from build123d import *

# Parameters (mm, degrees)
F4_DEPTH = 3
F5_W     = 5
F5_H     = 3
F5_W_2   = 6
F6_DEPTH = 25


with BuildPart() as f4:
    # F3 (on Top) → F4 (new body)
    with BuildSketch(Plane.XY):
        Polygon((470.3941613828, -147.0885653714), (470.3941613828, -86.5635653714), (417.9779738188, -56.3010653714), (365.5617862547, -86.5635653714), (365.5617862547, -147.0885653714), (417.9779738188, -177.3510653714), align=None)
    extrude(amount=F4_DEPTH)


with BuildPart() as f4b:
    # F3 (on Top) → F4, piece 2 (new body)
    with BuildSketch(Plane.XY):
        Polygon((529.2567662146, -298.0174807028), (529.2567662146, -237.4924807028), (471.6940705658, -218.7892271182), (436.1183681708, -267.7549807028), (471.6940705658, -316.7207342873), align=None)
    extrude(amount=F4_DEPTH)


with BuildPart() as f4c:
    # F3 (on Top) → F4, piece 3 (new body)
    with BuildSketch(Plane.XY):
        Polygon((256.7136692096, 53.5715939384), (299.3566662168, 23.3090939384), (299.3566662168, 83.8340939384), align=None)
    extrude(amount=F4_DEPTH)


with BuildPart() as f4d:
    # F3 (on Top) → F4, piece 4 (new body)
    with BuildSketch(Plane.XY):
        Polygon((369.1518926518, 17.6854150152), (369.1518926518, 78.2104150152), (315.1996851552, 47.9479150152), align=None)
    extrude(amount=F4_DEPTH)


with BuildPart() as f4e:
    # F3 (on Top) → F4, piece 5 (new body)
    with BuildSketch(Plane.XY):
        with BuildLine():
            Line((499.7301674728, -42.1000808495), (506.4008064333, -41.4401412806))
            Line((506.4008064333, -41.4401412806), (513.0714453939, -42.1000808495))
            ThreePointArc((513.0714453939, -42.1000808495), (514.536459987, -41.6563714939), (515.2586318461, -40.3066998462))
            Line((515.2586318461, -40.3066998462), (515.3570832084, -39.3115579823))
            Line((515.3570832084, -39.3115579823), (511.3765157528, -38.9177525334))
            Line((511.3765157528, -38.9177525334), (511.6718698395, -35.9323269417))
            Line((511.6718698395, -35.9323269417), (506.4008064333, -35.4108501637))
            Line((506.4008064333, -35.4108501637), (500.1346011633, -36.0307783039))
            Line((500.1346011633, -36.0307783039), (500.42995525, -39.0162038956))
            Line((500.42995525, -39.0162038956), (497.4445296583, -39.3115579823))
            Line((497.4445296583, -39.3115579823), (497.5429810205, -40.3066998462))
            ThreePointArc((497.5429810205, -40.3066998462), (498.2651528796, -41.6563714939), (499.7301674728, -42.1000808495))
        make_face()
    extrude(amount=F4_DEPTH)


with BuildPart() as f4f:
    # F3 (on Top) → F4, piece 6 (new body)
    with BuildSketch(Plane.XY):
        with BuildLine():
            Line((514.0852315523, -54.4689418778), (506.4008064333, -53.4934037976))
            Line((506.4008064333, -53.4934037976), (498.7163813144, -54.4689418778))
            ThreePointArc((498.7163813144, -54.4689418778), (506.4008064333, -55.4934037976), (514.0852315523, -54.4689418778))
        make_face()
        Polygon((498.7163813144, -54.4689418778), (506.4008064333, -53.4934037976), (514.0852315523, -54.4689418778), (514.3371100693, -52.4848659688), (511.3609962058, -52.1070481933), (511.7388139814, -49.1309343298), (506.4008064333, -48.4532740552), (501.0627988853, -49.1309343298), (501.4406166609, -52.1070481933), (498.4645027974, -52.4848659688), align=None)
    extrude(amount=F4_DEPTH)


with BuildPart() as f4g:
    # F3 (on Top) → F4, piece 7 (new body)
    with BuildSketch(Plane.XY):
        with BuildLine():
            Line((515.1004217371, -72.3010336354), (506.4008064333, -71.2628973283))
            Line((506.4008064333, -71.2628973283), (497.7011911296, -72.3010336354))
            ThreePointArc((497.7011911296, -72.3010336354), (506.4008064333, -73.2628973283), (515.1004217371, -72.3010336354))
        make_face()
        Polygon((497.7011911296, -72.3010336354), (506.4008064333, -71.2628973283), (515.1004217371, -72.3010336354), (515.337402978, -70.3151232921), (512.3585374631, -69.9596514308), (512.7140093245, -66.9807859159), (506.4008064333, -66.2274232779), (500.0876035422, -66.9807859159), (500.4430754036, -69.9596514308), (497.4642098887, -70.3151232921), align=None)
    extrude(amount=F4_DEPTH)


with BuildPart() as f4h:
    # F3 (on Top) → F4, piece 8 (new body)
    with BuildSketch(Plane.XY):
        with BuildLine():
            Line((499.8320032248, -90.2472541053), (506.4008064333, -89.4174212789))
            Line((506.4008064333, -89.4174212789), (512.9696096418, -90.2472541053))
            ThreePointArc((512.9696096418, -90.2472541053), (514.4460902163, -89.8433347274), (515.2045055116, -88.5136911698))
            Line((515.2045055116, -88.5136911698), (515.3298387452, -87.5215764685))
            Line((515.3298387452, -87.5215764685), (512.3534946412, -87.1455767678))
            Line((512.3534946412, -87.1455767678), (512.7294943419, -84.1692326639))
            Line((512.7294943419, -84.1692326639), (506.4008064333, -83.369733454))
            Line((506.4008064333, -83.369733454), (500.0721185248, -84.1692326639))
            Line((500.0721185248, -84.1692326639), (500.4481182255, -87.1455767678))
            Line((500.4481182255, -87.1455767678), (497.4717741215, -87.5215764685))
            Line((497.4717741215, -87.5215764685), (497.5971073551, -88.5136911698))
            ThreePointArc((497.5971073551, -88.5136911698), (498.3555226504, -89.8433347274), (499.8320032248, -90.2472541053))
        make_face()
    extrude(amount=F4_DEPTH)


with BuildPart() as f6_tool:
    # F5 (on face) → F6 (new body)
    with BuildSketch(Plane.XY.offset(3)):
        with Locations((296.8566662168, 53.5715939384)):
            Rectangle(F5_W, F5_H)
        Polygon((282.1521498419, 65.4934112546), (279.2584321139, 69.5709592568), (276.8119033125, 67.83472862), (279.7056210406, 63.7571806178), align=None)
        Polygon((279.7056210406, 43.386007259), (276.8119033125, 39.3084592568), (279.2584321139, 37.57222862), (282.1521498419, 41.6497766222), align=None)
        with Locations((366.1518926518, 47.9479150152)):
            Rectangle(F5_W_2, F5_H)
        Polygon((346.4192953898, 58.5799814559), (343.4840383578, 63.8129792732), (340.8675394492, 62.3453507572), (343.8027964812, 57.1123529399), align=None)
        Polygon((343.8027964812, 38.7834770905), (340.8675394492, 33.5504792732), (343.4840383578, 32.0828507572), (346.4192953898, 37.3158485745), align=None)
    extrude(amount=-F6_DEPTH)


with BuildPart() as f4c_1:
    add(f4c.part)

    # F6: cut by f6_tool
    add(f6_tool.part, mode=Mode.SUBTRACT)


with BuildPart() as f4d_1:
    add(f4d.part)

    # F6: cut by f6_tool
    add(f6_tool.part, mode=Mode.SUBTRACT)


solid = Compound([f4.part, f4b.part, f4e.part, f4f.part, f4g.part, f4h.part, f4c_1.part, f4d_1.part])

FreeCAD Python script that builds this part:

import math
import FreeCAD as App
import Part
import Sketcher
Q = App.Units.Quantity


def add_polygon(sketch, points):
    """Adds a closed chain of lines whose ends are joined by coincident constraints."""
    first, n = sketch.GeometryCount, len(points)
    for a, b in zip(points, points[1:] + points[:1]):
        sketch.addGeometry(Part.LineSegment(App.Vector(*a, 0), App.Vector(*b, 0)), False)
    for i in range(n):
        sketch.addConstraint(Sketcher.Constraint("Coincident", first + i, 2, first + (i + 1) % n, 1))

doc = App.newDocument("Part")
body = doc.addObject("PartDesign::Body", "Body")

# Sketch on XY plane
sketch1 = body.newObject("Sketcher::SketchObject", "Sketch")
sketch1.AttachmentSupport = (doc.getObject("XY_Plane"), [""])
sketch1.MapMode = "FlatFace"
add_polygon(sketch1, [(470, -147), (470, -87), (418, -56), (366, -87), (366, -147), (418, -177)])  # lines 0-5
sketch1.addConstraint([
    Sketcher.Constraint("Vertical", 0),
    Sketcher.Constraint("Vertical", 3),
    Sketcher.Constraint("Parallel", 1, 4),
    Sketcher.Constraint("Parallel", 2, 5),
    Sketcher.Constraint("Horizontal", 0, 2, 2, 2),
    Sketcher.Constraint("Horizontal", 3, 2, 5, 2),
    Sketcher.Constraint("Vertical", 1, 2, 4, 2),
    Sketcher.Constraint("Angle", 1, Q("150 deg")),
    Sketcher.Constraint("DistanceY", 0, 1, 0, 2, Q("60.525 mm")),
    Sketcher.Constraint("DistanceY", 4, 2, 1, 2, Q("121.05 mm")),
    Sketcher.Constraint("DistanceX", -1, 1, 0, 2, Q("470.394161 mm")),
    Sketcher.Constraint("DistanceY", 0, 2, -1, 1, Q("86.563565 mm")),
])
pad1 = body.newObject("PartDesign::Pad", "Pad")
pad1.Profile = sketch1
pad1.Length = 3
body2 = doc.addObject("PartDesign::Body", "Body001")

# Sketch on XY plane
sketch2 = body2.newObject("Sketcher::SketchObject", "Sketch001")
sketch2.AttachmentSupport = (doc.getObject("XY_Plane001"), [""])
sketch2.MapMode = "FlatFace"
add_polygon(sketch2, [(529, -298), (529, -237), (472, -219), (436, -268), (472, -317)])  # lines 0-4
sketch2.addConstraint([
    Sketcher.Constraint("Vertical", 0),
    Sketcher.Constraint("Vertical", 1, 2, 3, 2),
    Sketcher.Constraint("Equal", 1, 2),
    Sketcher.Constraint("Equal", 2, 3),
    Sketcher.Constraint("Equal", 3, 4),
    Sketcher.Constraint("Angle", 1, Q("162 deg")),
    Sketcher.Constraint("Angle", 2, Q("-126 deg")),
    Sketcher.Constraint("DistanceY", 0, 1, 0, 2, Q("60.525 mm")),
    Sketcher.Constraint("DistanceY", 0, 2, -1, 1, Q("237.492481 mm")),
    Sketcher.Constraint("DistanceX", -1, 1, 1, 2, Q("471.694071 mm")),
])
pad2 = body2.newObject("PartDesign::Pad", "Pad001")
pad2.Profile = sketch2
pad2.Length = 3
body3 = doc.addObject("PartDesign::Body", "Body002")

# Sketch on XY plane
sketch3 = body3.newObject("Sketcher::SketchObject", "Sketch002")
sketch3.AttachmentSupport = (doc.getObject("XY_Plane002"), [""])
sketch3.MapMode = "FlatFace"
add_polygon(sketch3, [(257, 54), (299, 23), (299, 84)])  # lines 0-2
sketch3.addConstraint([
    Sketcher.Constraint("Vertical", 1),
    Sketcher.Constraint("Equal", 0, 2),
    Sketcher.Constraint("Distance", 0, Q("52.29 mm")),
    Sketcher.Constraint("DistanceY", 1, 1, 1, 2, Q("60.525 mm")),
    Sketcher.Constraint("DistanceX", -1, 1, 2, 2, Q("256.713669 mm")),
    Sketcher.Constraint("DistanceY", -1, 1, 0, 2, Q("23.309094 mm")),
])
pad3 = body3.newObject("PartDesign::Pad", "Pad002")
pad3.Profile = sketch3
pad3.Length = 3
body4 = doc.addObject("PartDesign::Body", "Body003")

# Sketch on XY plane
sketch4 = body4.newObject("Sketcher::SketchObject", "Sketch003")
sketch4.AttachmentSupport = (doc.getObject("XY_Plane003"), [""])
sketch4.MapMode = "FlatFace"
add_polygon(sketch4, [(369, 18), (369, 78), (315, 48)])  # lines 0-2
sketch4.addConstraint([
    Sketcher.Constraint("Vertical", 0),
    Sketcher.Constraint("Equal", 1, 2),
    Sketcher.Constraint("Distance", 1, Q("61.86 mm")),
    Sketcher.Constraint("DistanceY", 0, 1, 0, 2, Q("60.525 mm")),
    Sketcher.Constraint("DistanceX", -1, 1, 0, 2, Q("369.151893 mm")),
    Sketcher.Constraint("DistanceY", -1, 1, 0, 2, Q("78.210415 mm")),
])
pad4 = body4.newObject("PartDesign::Pad", "Pad003")
pad4.Profile = sketch4
pad4.Length = 3
body5 = doc.addObject("PartDesign::Body", "Body004")

# Sketch on XY plane
sketch5 = body5.newObject("Sketcher::SketchObject", "Sketch004")
sketch5.AttachmentSupport = (doc.getObject("XY_Plane004"), [""])
sketch5.MapMode = "FlatFace"
sketch5.addGeometry([
    Part.LineSegment(App.Vector(499.7, -42.1, 0), App.Vector(506.4, -41.4, 0)),  # 0
    Part.LineSegment(App.Vector(506.4, -41.4, 0), App.Vector(513.1, -42.1, 0)),  # 1
    Part.ArcOfCircle(Part.Circle(App.Vector(513.3, -40.1, 0), App.Vector(0, 0, 1), 2), math.radians(-96), math.radians(-6)),  # 2
    Part.LineSegment(App.Vector(515.3, -40.3, 0), App.Vector(515.4, -39.3, 0)),  # 3
    Part.LineSegment(App.Vector(515.4, -39.3, 0), App.Vector(511.4, -38.9, 0)),  # 4
    Part.LineSegment(App.Vector(511.4, -38.9, 0), App.Vector(511.7, -35.9, 0)),  # 5
    Part.LineSegment(App.Vector(511.7, -35.9, 0), App.Vector(506.4, -35.4, 0)),  # 6
    Part.LineSegment(App.Vector(506.4, -35.4, 0), App.Vector(500.1, -36, 0)),  # 7
    Part.LineSegment(App.Vector(500.1, -36, 0), App.Vector(500.4, -39, 0)),  # 8
    Part.LineSegment(App.Vector(500.4, -39, 0), App.Vector(497.4, -39.3, 0)),  # 9
    Part.LineSegment(App.Vector(497.4, -39.3, 0), App.Vector(497.5, -40.3, 0)),  # 10
    Part.ArcOfCircle(Part.Circle(App.Vector(499.5, -40.1, 0), App.Vector(0, 0, 1), 2), math.radians(-174), math.radians(-84)),  # 11
], False)
sketch5.addConstraint([
    Sketcher.Constraint("Coincident", 0, 2, 1, 1),
    Sketcher.Constraint("Tangent", 1, 2, 2, 1),
    Sketcher.Constraint("Tangent", 2, 2, 3, 1),
    Sketcher.Constraint("Coincident", 3, 2, 4, 1),
    Sketcher.Constraint("Coincident", 4, 2, 5, 1),
    Sketcher.Constraint("Coincident", 5, 2, 6, 1),
    Sketcher.Constraint("Coincident", 6, 2, 7, 1),
    Sketcher.Constraint("Coincident", 7, 2, 8, 1),
    Sketcher.Constraint("Coincident", 8, 2, 9, 1),
    Sketcher.Constraint("Coincident", 9, 2, 10, 1),
    Sketcher.Constraint("Tangent", 10, 2, 11, 1),
    Sketcher.Constraint("Tangent", 11, 2, 0, 1),
    Sketcher.Constraint("Equal", 2, 11),
    Sketcher.Constraint("Perpendicular", 1, 3),
    Sketcher.Constraint("Perpendicular", 3, 4),
    Sketcher.Constraint("Perpendicular", 4, 5),
    Sketcher.Constraint("Perpendicular", 5, 6),
    Sketcher.Constraint("Parallel", 0, 7),
    Sketcher.Constraint("Perpendicular", 7, 8),
    Sketcher.Constraint("Perpendicular", 8, 9),
    Sketcher.Constraint("Perpendicular", 9, 10),
    Sketcher.Constraint("Horizontal", 2, 3, 11, 3),
    Sketcher.Constraint("Horizontal", 3, 2, 9, 2),
    Sketcher.Constraint("Horizontal", 2, 2, 10, 2),
    Sketcher.Constraint("Vertical", 0, 2, 6, 2),
    Sketcher.Constraint("Equal", 8, 9),
    Sketcher.Constraint("Radius", 2, Q("2 mm")),
    Sketcher.Constraint("Distance", 3, Q("1 mm")),
    Sketcher.Constraint("Distance", 4, Q("4 mm")),
    Sketcher.Constraint("Distance", 5, Q("3 mm")),
    Sketcher.Constraint("Angle", 0, Q("5.65 deg")),
    Sketcher.Constraint("DistanceY", 2, 2, -1, 1, Q("40.3067 mm")),
    Sketcher.Constraint("DistanceX", -1, 1, 7, 2, Q("500.134601 mm")),
    Sketcher.Constraint("DistanceX", -1, 1, 2, 3, Q("513.268348 mm")),
])
pad5 = body5.newObject("PartDesign::Pad", "Pad004")
pad5.Profile = sketch5
pad5.Length = 3
body6 = doc.addObject("PartDesign::Body", "Body005")

# Sketch on XY plane
sketch6 = body6.newObject("Sketcher::SketchObject", "Sketch005")
sketch6.AttachmentSupport = (doc.getObject("XY_Plane005"), [""])
sketch6.MapMode = "FlatFace"
sketch6.addGeometry([
    Part.ArcOfCircle(Part.Circle(App.Vector(506.4, -26.2, 0), App.Vector(0, 0, 1), 29.3), math.radians(-105), math.radians(-75)),  # 0
    Part.LineSegment(App.Vector(514.1, -54.5, 0), App.Vector(514.3, -52.5, 0)),  # 1
    Part.LineSegment(App.Vector(514.3, -52.5, 0), App.Vector(511.4, -52.1, 0)),  # 2
    Part.LineSegment(App.Vector(511.4, -52.1, 0), App.Vector(511.7, -49.1, 0)),  # 3
    Part.LineSegment(App.Vector(511.7, -49.1, 0), App.Vector(506.4, -48.5, 0)),  # 4
    Part.LineSegment(App.Vector(506.4, -48.5, 0), App.Vector(501.1, -49.1, 0)),  # 5
    Part.LineSegment(App.Vector(501.1, -49.1, 0), App.Vector(501.4, -52.1, 0)),  # 6
    Part.LineSegment(App.Vector(501.4, -52.1, 0), App.Vector(498.5, -52.5, 0)),  # 7
    Part.LineSegment(App.Vector(498.5, -52.5, 0), App.Vector(498.7, -54.5, 0)),  # 8
], False)
sketch6.addConstraint([
    Sketcher.Constraint("Coincident", 0, 2, 1, 1),
    Sketcher.Constraint("Coincident", 1, 2, 2, 1),
    Sketcher.Constraint("Coincident", 2, 2, 3, 1),
    Sketcher.Constraint("Coincident", 3, 2, 4, 1),
    Sketcher.Constraint("Coincident", 4, 2, 5, 1),
    Sketcher.Constraint("Coincident", 5, 2, 6, 1),
    Sketcher.Constraint("Coincident", 6, 2, 7, 1),
    Sketcher.Constraint("Coincident", 7, 2, 8, 1),
    Sketcher.Constraint("Coincident", 8, 2, 0, 1),
    Sketcher.Constraint("Perpendicular", 1, 2),
    Sketcher.Constraint("Perpendicular", 2, 3),
    Sketcher.Constraint("Perpendicular", 3, 4),
    Sketcher.Constraint("Perpendicular", 5, 6),
    Sketcher.Constraint("Perpendicular", 6, 7),
    Sketcher.Constraint("Perpendicular", 7, 8),
    Sketcher.Constraint("Horizontal", 3, 2, 5, 2),
    Sketcher.Constraint("Horizontal", 2, 2, 6, 2),
    Sketcher.Constraint("Horizontal", 1, 2, 7, 2),
    Sketcher.Constraint("Horizontal", 0, 2, 8, 2),
    Sketcher.Constraint("Vertical", 0, 3, 4, 2),
    Sketcher.Constraint("Equal", 2, 3),
    Sketcher.Constraint("Distance", 1, Q("2 mm")),
    Sketcher.Constraint("Distance", 2, Q("3 mm")),
    Sketcher.Constraint("Radius", 0, Q("29.332428 mm")),
    Sketcher.Constraint("DistanceX", -1, 1, 5, 2, Q("501.062799 mm")),
    Sketcher.Constraint("DistanceY", 4, 2, 0, 3, Q("22.292299 mm")),
    Sketcher.Constraint("Distance", 4, Q("5.38085 mm")),
    Sketcher.Constraint("DistanceY", 0, 2, -1, 1, Q("54.468942 mm")),
])
pad6 = body6.newObject("PartDesign::Pad", "Pad005")
pad6.Profile = sketch6
pad6.Length = 3
body7 = doc.addObject("PartDesign::Body", "Body006")

# Sketch on XY plane
sketch7 = body7.newObject("Sketcher::SketchObject", "Sketch006")
sketch7.AttachmentSupport = (doc.getObject("XY_Plane006"), [""])
sketch7.MapMode = "FlatFace"
sketch7.addGeometry([
    Part.ArcOfCircle(Part.Circle(App.Vector(506.4, -33.4, 0), App.Vector(0, 0, 1), 39.8), math.radians(-103), math.radians(-77)),  # 0
    Part.LineSegment(App.Vector(515.1, -72.3, 0), App.Vector(515.3, -70.3, 0)),  # 1
    Part.LineSegment(App.Vector(515.3, -70.3, 0), App.Vector(512.4, -70, 0)),  # 2
    Part.LineSegment(App.Vector(512.4, -70, 0), App.Vector(512.7, -67, 0)),  # 3
    Part.LineSegment(App.Vector(512.7, -67, 0), App.Vector(506.4, -66.2, 0)),  # 4
    Part.LineSegment(App.Vector(506.4, -66.2, 0), App.Vector(500.1, -67, 0)),  # 5
    Part.LineSegment(App.Vector(500.1, -67, 0), App.Vector(500.4, -70, 0)),  # 6
    Part.LineSegment(App.Vector(500.4, -70, 0), App.Vector(497.5, -70.3, 0)),  # 7
    Part.LineSegment(App.Vector(497.5, -70.3, 0), App.Vector(497.7, -72.3, 0)),  # 8
], False)
sketch7.addConstraint([
    Sketcher.Constraint("Coincident", 0, 2, 1, 1),
    Sketcher.Constraint("Coincident", 1, 2, 2, 1),
    Sketcher.Constraint("Coincident", 2, 2, 3, 1),
    Sketcher.Constraint("Coincident", 3, 2, 4, 1),
    Sketcher.Constraint("Coincident", 4, 2, 5, 1),
    Sketcher.Constraint("Coincident", 5, 2, 6, 1),
    Sketcher.Constraint("Coincident", 6, 2, 7, 1),
    Sketcher.Constraint("Coincident", 7, 2, 8, 1),
    Sketcher.Constraint("Coincident", 8, 2, 0, 1),
    Sketcher.Constraint("Perpendicular", 1, 2),
    Sketcher.Constraint("Perpendicular", 2, 3),
    Sketcher.Constraint("Perpendicular", 3, 4),
    Sketcher.Constraint("Perpendicular", 5, 6),
    Sketcher.Constraint("Perpendicular", 6, 7),
    Sketcher.Constraint("Perpendicular", 7, 8),
    Sketcher.Constraint("Horizontal", 3, 2, 5, 2),
    Sketcher.Constraint("Horizontal", 2, 2, 6, 2),
    Sketcher.Constraint("Horizontal", 1, 2, 7, 2),
    Sketcher.Constraint("Horizontal", 0, 2, 8, 2),
    Sketcher.Constraint("Vertical", 0, 3, 4, 2),
    Sketcher.Constraint("Equal", 2, 3),
    Sketcher.Constraint("Distance", 1, Q("2 mm")),
    Sketcher.Constraint("Distance", 2, Q("3 mm")),
    Sketcher.Constraint("Radius", 0, Q("39.822944 mm")),
    Sketcher.Constraint("DistanceY", 2, 2, 0, 3, Q("36.519698 mm")),
    Sketcher.Constraint("DistanceY", 1, 2, 4, 2, Q("4.0877 mm")),
    Sketcher.Constraint("DistanceX", -1, 1, 0, 2, Q("515.100422 mm")),
    Sketcher.Constraint("DistanceY", 2, 2, -1, 1, Q("69.959651 mm")),
])
pad7 = body7.newObject("PartDesign::Pad", "Pad006")
pad7.Profile = sketch7
pad7.Length = 3
body8 = doc.addObject("PartDesign::Body", "Body007")

# Sketch on XY plane
sketch8 = body8.newObject("Sketcher::SketchObject", "Sketch007")
sketch8.AttachmentSupport = (doc.getObject("XY_Plane007"), [""])
sketch8.MapMode = "FlatFace"
sketch8.addGeometry([
    Part.LineSegment(App.Vector(499.8, -90.2, 0), App.Vector(506.4, -89.4, 0)),  # 0
    Part.LineSegment(App.Vector(506.4, -89.4, 0), App.Vector(513, -90.2, 0)),  # 1
    Part.ArcOfCircle(Part.Circle(App.Vector(513.2, -88.3, 0), App.Vector(0, 0, 1), 2), math.radians(-97), math.radians(-7)),  # 2
    Part.LineSegment(App.Vector(515.2, -88.5, 0), App.Vector(515.3, -87.5, 0)),  # 3
    Part.LineSegment(App.Vector(515.3, -87.5, 0), App.Vector(512.4, -87.1, 0)),  # 4
    Part.LineSegment(App.Vector(512.4, -87.1, 0), App.Vector(512.7, -84.2, 0)),  # 5
    Part.LineSegment(App.Vector(512.7, -84.2, 0), App.Vector(506.4, -83.4, 0)),  # 6
    Part.LineSegment(App.Vector(506.4, -83.4, 0), App.Vector(500.1, -84.2, 0)),  # 7
    Part.LineSegment(App.Vector(500.1, -84.2, 0), App.Vector(500.4, -87.1, 0)),  # 8
    Part.LineSegment(App.Vector(500.4, -87.1, 0), App.Vector(497.5, -87.5, 0)),  # 9
    Part.LineSegment(App.Vector(497.5, -87.5, 0), App.Vector(497.6, -88.5, 0)),  # 10
    Part.ArcOfCircle(Part.Circle(App.Vector(499.6, -88.3, 0), App.Vector(0, 0, 1), 2), math.radians(-173), math.radians(-83)),  # 11
], False)
sketch8.addConstraint([
    Sketcher.Constraint("Coincident", 0, 2, 1, 1),
    Sketcher.Constraint("Tangent", 1, 2, 2, 1),
    Sketcher.Constraint("Tangent", 2, 2, 3, 1),
    Sketcher.Constraint("Coincident", 3, 2, 4, 1),
    Sketcher.Constraint("Coincident", 4, 2, 5, 1),
    Sketcher.Constraint("Coincident", 5, 2, 6, 1),
    Sketcher.Constraint("Coincident", 6, 2, 7, 1),
    Sketcher.Constraint("Coincident", 7, 2, 8, 1),
    Sketcher.Constraint("Coincident", 8, 2, 9, 1),
    Sketcher.Constraint("Coincident", 9, 2, 10, 1),
    Sketcher.Constraint("Tangent", 10, 2, 11, 1),
    Sketcher.Constraint("Tangent", 11, 2, 0, 1),
    Sketcher.Constraint("Equal", 2, 11),
    Sketcher.Constraint("Perpendicular", 1, 3),
    Sketcher.Constraint("Perpendicular", 3, 4),
    Sketcher.Constraint("Perpendicular", 4, 5),
    Sketcher.Constraint("Perpendicular", 5, 6),
    Sketcher.Constraint("Parallel", 0, 7),
    Sketcher.Constraint("Perpendicular", 7, 8),
    Sketcher.Constraint("Perpendicular", 8, 9),
    Sketcher.Constraint("Perpendicular", 9, 10),
    Sketcher.Constraint("Horizontal", 2, 3, 11, 3),
    Sketcher.Constraint("Horizontal", 5, 2, 7, 2),
    Sketcher.Constraint("Horizontal", 4, 2, 8, 2),
    Sketcher.Constraint("Horizontal", 3, 2, 9, 2),
    Sketcher.Constraint("Horizontal", 2, 2, 10, 2),
    Sketcher.Constraint("Equal", 4, 5),
    Sketcher.Constraint("Radius", 2, Q("2 mm")),
    Sketcher.Constraint("Distance", 3, Q("1 mm")),
    Sketcher.Constraint("Distance", 4, Q("3 mm")),
    Sketcher.Constraint("Angle", 0, Q("7.2 deg")),
    Sketcher.Constraint("DistanceX", 0, 2, 2, 2, Q("8.803699 mm")),
    Sketcher.Constraint("DistanceY", 0, 2, -1, 1, Q("89.417421 mm")),
    Sketcher.Constraint("DistanceX", -1, 1, 1, 2, Q("512.96961 mm")),
])
pad8 = body8.newObject("PartDesign::Pad", "Pad007")
pad8.Profile = sketch8
pad8.Length = 3
body9 = doc.addObject("PartDesign::Body", "Body008")
body9.AllowCompound = True

# Sketch on XY plane
sketch9 = body9.newObject("Sketcher::SketchObject", "Sketch008")
sketch9.AttachmentSupport = (doc.getObject("XY_Plane008"), [""])
sketch9.MapMode = "FlatFace"
sketch9.AttachmentOffset = App.Placement(App.Vector(0, 0, 3), App.Rotation())
add_polygon(sketch9, [(294.4, 55.1), (294.4, 52.1), (299.4, 52.1), (299.4, 55.1)])  # lines 0-3
add_polygon(sketch9, [(282.2, 65.5), (279.3, 69.6), (276.8, 67.8), (279.7, 63.8)])  # lines 4-7
add_polygon(sketch9, [(279.7, 43.4), (276.8, 39.3), (279.3, 37.6), (282.2, 41.6)])  # lines 8-11
add_polygon(sketch9, [(363.2, 49.4), (363.2, 46.4), (369.2, 46.4), (369.2, 49.4)])  # lines 12-15
add_polygon(sketch9, [(346.4, 58.6), (343.5, 63.8), (340.9, 62.3), (343.8, 57.1)])  # lines 16-19
add_polygon(sketch9, [(343.8, 38.8), (340.9, 33.6), (343.5, 32.1), (346.4, 37.3)])  # lines 20-23
sketch9.addConstraint([
    Sketcher.Constraint("Vertical", 0),
    Sketcher.Constraint("Horizontal", 1),
    Sketcher.Constraint("Vertical", 2),
    Sketcher.Constraint("Horizontal", 3),
    Sketcher.Constraint("Vertical", 12),
    Sketcher.Constraint("Horizontal", 13),
    Sketcher.Constraint("Vertical", 14),
    Sketcher.Constraint("Horizontal", 15),
    Sketcher.Constraint("Perpendicular", 4, 5),
    Sketcher.Constraint("Perpendicular", 5, 6),
    Sketcher.Constraint("Perpendicular", 6, 7),
    Sketcher.Constraint("Perpendicular", 8, 9),
    Sketcher.Constraint("Perpendicular", 9, 10),
    Sketcher.Constraint("Perpendicular", 10, 11),
    Sketcher.Constraint("Perpendicular", 16, 17),
    Sketcher.Constraint("Perpendicular", 17, 18),
    Sketcher.Constraint("Perpendicular", 18, 19),
    Sketcher.Constraint("Perpendicular", 20, 21),
    Sketcher.Constraint("Perpendicular", 21, 22),
    Sketcher.Constraint("Perpendicular", 22, 23),
    Sketcher.Constraint("Vertical", 5, 2, 8, 2),
    Sketcher.Constraint("Vertical", 4, 2, 9, 2),
    Sketcher.Constraint("Vertical", 7, 2, 10, 2),
    Sketcher.Constraint("Vertical", 17, 2, 20, 2),
    Sketcher.Constraint("Vertical", 16, 2, 21, 2),
    Sketcher.Constraint("Vertical", 19, 2, 22, 2),
    Sketcher.Constraint("Equal", 2, 12),
    Sketcher.Constraint("Equal", 6, 8),
    Sketcher.Constraint("Equal", 11, 17),
    Sketcher.Constraint("Equal", 18, 20),
    Sketcher.Constraint("DistanceX", 1, 1, 1, 2, Q("5 mm")),
    Sketcher.Constraint("DistanceX", 13, 1, 13, 2, Q("6 mm")),
    Sketcher.Constraint("DistanceY", 0, 2, 0, 1, Q("3 mm")),
    Sketcher.Constraint("Distance", 4, Q("5 mm")),
    Sketcher.Constraint("Distance", 5, Q("3 mm")),
    Sketcher.Constraint("Distance", 16, Q("6 mm")),
    Sketcher.Constraint("DistanceX", 17, 2, 16, 2, Q("2.616499 mm")),
    Sketcher.Constraint("DistanceY", -1, 1, 4, 2, Q("69.570959 mm")),
    Sketcher.Constraint("DistanceY", -1, 1, 5, 2, Q("67.834729 mm")),
    Sketcher.Constraint("DistanceX", -1, 1, 6, 2, Q("279.705621 mm")),
    Sketcher.Constraint("DistanceY", -1, 1, 8, 2, Q("39.308459 mm")),
    Sketcher.Constraint("DistanceX", -1, 1, 16, 2, Q("343.484038 mm")),
    Sketcher.Constraint("DistanceY", -1, 1, 16, 2, Q("63.812979 mm")),
    Sketcher.Constraint("DistanceY", -1, 1, 20, 2, Q("33.550479 mm")),
    Sketcher.Constraint("DistanceY", 12, 2, 1, 2, Q("5.623679 mm")),
    Sketcher.Constraint("DistanceY", 10, 2, 12, 2, Q("4.798138 mm")),
    Sketcher.Constraint("DistanceX", -1, 1, 0, 2, Q("294.356666 mm")),
    Sketcher.Constraint("DistanceX", -1, 1, 12, 2, Q("363.151893 mm")),
])
pad9 = body9.newObject("PartDesign::Pad", "Pad008")
pad9.Profile = sketch9
pad9.Length = 25
pad9.Reversed = True
doc.recompute()

body10 = doc.addObject("PartDesign::Body", "Body009")
body10.BaseFeature = body9
boolean = body3.newObject("PartDesign::Boolean", "Boolean")
boolean.Type = "Cut"
boolean.addObjects([body10])
doc.recompute()

boolean2 = body4.newObject("PartDesign::Boolean", "Boolean001")
boolean2.Type = "Cut"
boolean2.addObjects([body9])

doc.recompute()
